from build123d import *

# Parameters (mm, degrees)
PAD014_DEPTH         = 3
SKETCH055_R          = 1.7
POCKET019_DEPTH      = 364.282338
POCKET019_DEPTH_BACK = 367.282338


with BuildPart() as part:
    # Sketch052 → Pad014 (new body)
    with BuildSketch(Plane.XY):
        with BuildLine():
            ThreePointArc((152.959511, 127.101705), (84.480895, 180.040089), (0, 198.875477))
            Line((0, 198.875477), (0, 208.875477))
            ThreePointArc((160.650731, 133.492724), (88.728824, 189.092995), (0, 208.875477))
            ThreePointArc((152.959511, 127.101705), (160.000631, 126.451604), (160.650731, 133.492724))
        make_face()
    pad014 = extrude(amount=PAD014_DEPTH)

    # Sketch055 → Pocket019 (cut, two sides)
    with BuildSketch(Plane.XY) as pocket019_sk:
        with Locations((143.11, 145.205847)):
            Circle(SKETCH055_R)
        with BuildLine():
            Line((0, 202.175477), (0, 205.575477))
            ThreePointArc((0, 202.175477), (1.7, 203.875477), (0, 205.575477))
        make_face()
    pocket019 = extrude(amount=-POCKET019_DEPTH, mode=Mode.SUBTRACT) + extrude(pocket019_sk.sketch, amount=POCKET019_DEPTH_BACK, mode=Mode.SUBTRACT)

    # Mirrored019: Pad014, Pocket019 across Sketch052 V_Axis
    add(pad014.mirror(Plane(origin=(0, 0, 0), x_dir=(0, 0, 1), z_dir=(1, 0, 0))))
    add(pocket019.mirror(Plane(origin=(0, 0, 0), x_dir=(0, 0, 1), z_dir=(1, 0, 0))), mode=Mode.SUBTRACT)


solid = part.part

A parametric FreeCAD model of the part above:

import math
import FreeCAD as App
import Part
import Sketcher

doc = App.newDocument("Part")
body = doc.addObject("PartDesign::Body", "Body")

# Sketch on XY plane
sketch1 = body.newObject("Sketcher::SketchObject", "Sketch")
sketch1.AttachmentSupport = (doc.getObject("XY_Plane"), [""])
sketch1.MapMode = "FlatFace"
sketch1.addGeometry(Part.ArcOfCircle(Part.Circle(App.Vector(0, 0, 0), App.Vector(0, 0, 1), 198.9), math.radians(40), math.radians(90)), False)
sketch1.addGeometry(Part.ArcOfCircle(Part.Circle(App.Vector(156.8, 130.3, 0), App.Vector(0, 0, 1), 5), math.radians(-140), math.radians(40)), False)
sketch1.addGeometry(Part.ArcOfCircle(Part.Circle(App.Vector(0, 0, 0), App.Vector(0, 0, 1), 208.9), math.radians(40), math.radians(90)), False)
sketch1.addGeometry(Part.LineSegment(App.Vector(0, 208.9, 0), App.Vector(0, 198.9, 0)), False)
sketch1.addConstraint(Sketcher.Constraint("Tangent", 0, 1, 1, 1))
sketch1.addConstraint(Sketcher.Constraint("Tangent", 1, 2, 2, 1))
sketch1.addConstraint(Sketcher.Constraint("Coincident", 2, 2, 3, 1))
sketch1.addConstraint(Sketcher.Constraint("Coincident", 3, 2, 0, 2))
sketch1.addConstraint(Sketcher.Constraint("Vertical", 3))
sketch1.addConstraint(Sketcher.Constraint("Coincident", 0, 3, -1, 1))
sketch1.addConstraint(Sketcher.Constraint("Coincident", 2, 3, -1, 1))
sketch1.addConstraint(Sketcher.Constraint("PointOnObject", 2, 2, -2))
sketch1.addConstraint(Sketcher.Constraint("Radius", 1, 5.0))
sketch1.addConstraint(Sketcher.Constraint("Radius", 0, 198.87548))
sketch1.addConstraint(Sketcher.Constraint("DistanceY", 2, 3, 0, 1, 127.101701))
pad1 = body.newObject("PartDesign::Pad", "Pad")
pad1.Profile = sketch1
pad1.Length = 3

# Sketch on XY plane
sketch2 = body.newObject("Sketcher::SketchObject", "Sketch001")
sketch2.AttachmentSupport = (doc.getObject("XY_Plane"), [""])
sketch2.MapMode = "FlatFace"
sketch2.addGeometry(Part.Circle(App.Vector(143.1, 145.2, 0), App.Vector(0, 0, 1), 1.7), False)
sketch2.addGeometry(Part.LineSegment(App.Vector(0, 205.6, 0), App.Vector(0, 202.2, 0)), False)
sketch2.addGeometry(Part.ArcOfCircle(Part.Circle(App.Vector(0, 203.9, 0), App.Vector(0, 0, 1), 1.7), math.radians(-90), math.radians(90)), False)
sketch2.addConstraint(Sketcher.Constraint("Coincident", 1, 1, 2, 2))
sketch2.addConstraint(Sketcher.Constraint("Coincident", 2, 1, 1, 2))
sketch2.addConstraint(Sketcher.Constraint("Vertical", 1))
sketch2.addConstraint(Sketcher.Constraint("Equal", 0, 2))
sketch2.addConstraint(Sketcher.Constraint("PointOnObject", 2, 3, -2))
sketch2.addConstraint(Sketcher.Constraint("PointOnObject", 1, 1, -2))
sketch2.addConstraint(Sketcher.Constraint("Diameter", 0, 3.4))
sketch2.addConstraint(Sketcher.Constraint("DistanceX", -1, 1, 0, 3, 143.11))
sketch2.addConstraint(Sketcher.Constraint("DistanceY", 0, 3, 2, 3, 58.66963))
sketch2.addConstraint(Sketcher.Constraint("DistanceY", -1, 1, 0, 3, 145.205847))
pocket1 = body.newObject("PartDesign::Pocket", "Pocket")
pocket1.Profile = sketch2
pocket1.Type = "ThroughAll"
pocket1.Midplane = True
doc.recompute()

mirrored = body.newObject("PartDesign::Mirrored", "Mirrored")
mirrored.Originals = [pad1, pocket1]
mirrored.MirrorPlane = (doc.getObject("YZ_Plane"), [""])
body.Tip = mirrored

doc.recompute()
